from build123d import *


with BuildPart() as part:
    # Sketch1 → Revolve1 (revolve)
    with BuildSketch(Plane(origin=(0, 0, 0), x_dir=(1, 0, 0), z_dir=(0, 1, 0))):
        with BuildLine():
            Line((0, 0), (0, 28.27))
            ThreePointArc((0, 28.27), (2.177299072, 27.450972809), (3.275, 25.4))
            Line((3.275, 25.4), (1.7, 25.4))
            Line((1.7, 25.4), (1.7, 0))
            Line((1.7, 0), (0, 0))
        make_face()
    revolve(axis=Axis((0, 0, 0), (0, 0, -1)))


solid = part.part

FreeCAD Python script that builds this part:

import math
import FreeCAD as App
import Part
import Sketcher

doc = App.newDocument("Part")
params = doc.addObject("Spreadsheet::Sheet", "Params")
for row, (alias, value) in enumerate([
    ("sketch1_width", "1.7 mm"),
    ("sketch1_height", "25.4 mm"),
    ("sketch1_height2", "28.27 mm"),
    ("revolution_angle", "360 deg"),
], start=1):
    params.set(f"A{row}", alias)
    params.set(f"B{row}", "=" + value)
    params.setAlias(f"B{row}", alias)

body = doc.addObject("PartDesign::Body", "Body")

sketch1 = body.newObject("Sketcher::SketchObject", "Sketch")
sketch1.AttachmentSupport = (doc.getObject("XZ_Plane"), [""])
sketch1.MapMode = "FlatFace"
sketch1.addGeometry([
    Part.LineSegment(App.Vector(0, -28.3, 0), App.Vector(0, 0, 0)),
    Part.LineSegment(App.Vector(0, 0, 0), App.Vector(1.7, 0, 0)),
    Part.LineSegment(App.Vector(1.7, 0, 0), App.Vector(1.7, -25.4, 0)),
    Part.LineSegment(App.Vector(1.7, -25.4, 0), App.Vector(3.3, -25.4, 0)),
    Part.ArcOfCircle(Part.Circle(App.Vector(0, -25, 0), App.Vector(0, 0, 1), 3.3), math.radians(-90), math.radians(-8)),
], False)
sketch1.addConstraint([
    Sketcher.Constraint("Coincident", 0, 2, 1, 1),
    Sketcher.Constraint("Coincident", 1, 2, 2, 1),
    Sketcher.Constraint("Coincident", 2, 2, 3, 1),
    Sketcher.Constraint("Coincident", 3, 2, 4, 2),
    Sketcher.Constraint("Coincident", 4, 1, 0, 1),
    Sketcher.Constraint("Vertical", 0),
    Sketcher.Constraint("Horizontal", 1),
    Sketcher.Constraint("Vertical", 2),
    Sketcher.Constraint("Horizontal", 3),
    Sketcher.Constraint("Coincident", 0, 2, -1, 1),
    Sketcher.Constraint("PointOnObject", 4, 3, -2),
    Sketcher.Constraint("DistanceX", 1, 1, 1, 2, 1.7),
    Sketcher.Constraint("DistanceY", 2, 2, 2, 1, 25.4),
    Sketcher.Constraint("DistanceY", 0, 1, 0, 2, 28.27),
    Sketcher.Constraint("DistanceX", 3, 1, 3, 2, 1.575),
])
sketch1.setExpression("Constraints[11]", "Params.sketch1_width")
sketch1.setExpression("Constraints[12]", "Params.sketch1_height")
sketch1.setExpression("Constraints[13]", "Params.sketch1_height2")
revolution = body.newObject("PartDesign::Revolution", "Revolution")
revolution.Profile = sketch1
revolution.ReferenceAxis = (sketch1, ["V_Axis"])
revolution.setExpression("Angle", "Params.revolution_angle")

doc.recompute()
